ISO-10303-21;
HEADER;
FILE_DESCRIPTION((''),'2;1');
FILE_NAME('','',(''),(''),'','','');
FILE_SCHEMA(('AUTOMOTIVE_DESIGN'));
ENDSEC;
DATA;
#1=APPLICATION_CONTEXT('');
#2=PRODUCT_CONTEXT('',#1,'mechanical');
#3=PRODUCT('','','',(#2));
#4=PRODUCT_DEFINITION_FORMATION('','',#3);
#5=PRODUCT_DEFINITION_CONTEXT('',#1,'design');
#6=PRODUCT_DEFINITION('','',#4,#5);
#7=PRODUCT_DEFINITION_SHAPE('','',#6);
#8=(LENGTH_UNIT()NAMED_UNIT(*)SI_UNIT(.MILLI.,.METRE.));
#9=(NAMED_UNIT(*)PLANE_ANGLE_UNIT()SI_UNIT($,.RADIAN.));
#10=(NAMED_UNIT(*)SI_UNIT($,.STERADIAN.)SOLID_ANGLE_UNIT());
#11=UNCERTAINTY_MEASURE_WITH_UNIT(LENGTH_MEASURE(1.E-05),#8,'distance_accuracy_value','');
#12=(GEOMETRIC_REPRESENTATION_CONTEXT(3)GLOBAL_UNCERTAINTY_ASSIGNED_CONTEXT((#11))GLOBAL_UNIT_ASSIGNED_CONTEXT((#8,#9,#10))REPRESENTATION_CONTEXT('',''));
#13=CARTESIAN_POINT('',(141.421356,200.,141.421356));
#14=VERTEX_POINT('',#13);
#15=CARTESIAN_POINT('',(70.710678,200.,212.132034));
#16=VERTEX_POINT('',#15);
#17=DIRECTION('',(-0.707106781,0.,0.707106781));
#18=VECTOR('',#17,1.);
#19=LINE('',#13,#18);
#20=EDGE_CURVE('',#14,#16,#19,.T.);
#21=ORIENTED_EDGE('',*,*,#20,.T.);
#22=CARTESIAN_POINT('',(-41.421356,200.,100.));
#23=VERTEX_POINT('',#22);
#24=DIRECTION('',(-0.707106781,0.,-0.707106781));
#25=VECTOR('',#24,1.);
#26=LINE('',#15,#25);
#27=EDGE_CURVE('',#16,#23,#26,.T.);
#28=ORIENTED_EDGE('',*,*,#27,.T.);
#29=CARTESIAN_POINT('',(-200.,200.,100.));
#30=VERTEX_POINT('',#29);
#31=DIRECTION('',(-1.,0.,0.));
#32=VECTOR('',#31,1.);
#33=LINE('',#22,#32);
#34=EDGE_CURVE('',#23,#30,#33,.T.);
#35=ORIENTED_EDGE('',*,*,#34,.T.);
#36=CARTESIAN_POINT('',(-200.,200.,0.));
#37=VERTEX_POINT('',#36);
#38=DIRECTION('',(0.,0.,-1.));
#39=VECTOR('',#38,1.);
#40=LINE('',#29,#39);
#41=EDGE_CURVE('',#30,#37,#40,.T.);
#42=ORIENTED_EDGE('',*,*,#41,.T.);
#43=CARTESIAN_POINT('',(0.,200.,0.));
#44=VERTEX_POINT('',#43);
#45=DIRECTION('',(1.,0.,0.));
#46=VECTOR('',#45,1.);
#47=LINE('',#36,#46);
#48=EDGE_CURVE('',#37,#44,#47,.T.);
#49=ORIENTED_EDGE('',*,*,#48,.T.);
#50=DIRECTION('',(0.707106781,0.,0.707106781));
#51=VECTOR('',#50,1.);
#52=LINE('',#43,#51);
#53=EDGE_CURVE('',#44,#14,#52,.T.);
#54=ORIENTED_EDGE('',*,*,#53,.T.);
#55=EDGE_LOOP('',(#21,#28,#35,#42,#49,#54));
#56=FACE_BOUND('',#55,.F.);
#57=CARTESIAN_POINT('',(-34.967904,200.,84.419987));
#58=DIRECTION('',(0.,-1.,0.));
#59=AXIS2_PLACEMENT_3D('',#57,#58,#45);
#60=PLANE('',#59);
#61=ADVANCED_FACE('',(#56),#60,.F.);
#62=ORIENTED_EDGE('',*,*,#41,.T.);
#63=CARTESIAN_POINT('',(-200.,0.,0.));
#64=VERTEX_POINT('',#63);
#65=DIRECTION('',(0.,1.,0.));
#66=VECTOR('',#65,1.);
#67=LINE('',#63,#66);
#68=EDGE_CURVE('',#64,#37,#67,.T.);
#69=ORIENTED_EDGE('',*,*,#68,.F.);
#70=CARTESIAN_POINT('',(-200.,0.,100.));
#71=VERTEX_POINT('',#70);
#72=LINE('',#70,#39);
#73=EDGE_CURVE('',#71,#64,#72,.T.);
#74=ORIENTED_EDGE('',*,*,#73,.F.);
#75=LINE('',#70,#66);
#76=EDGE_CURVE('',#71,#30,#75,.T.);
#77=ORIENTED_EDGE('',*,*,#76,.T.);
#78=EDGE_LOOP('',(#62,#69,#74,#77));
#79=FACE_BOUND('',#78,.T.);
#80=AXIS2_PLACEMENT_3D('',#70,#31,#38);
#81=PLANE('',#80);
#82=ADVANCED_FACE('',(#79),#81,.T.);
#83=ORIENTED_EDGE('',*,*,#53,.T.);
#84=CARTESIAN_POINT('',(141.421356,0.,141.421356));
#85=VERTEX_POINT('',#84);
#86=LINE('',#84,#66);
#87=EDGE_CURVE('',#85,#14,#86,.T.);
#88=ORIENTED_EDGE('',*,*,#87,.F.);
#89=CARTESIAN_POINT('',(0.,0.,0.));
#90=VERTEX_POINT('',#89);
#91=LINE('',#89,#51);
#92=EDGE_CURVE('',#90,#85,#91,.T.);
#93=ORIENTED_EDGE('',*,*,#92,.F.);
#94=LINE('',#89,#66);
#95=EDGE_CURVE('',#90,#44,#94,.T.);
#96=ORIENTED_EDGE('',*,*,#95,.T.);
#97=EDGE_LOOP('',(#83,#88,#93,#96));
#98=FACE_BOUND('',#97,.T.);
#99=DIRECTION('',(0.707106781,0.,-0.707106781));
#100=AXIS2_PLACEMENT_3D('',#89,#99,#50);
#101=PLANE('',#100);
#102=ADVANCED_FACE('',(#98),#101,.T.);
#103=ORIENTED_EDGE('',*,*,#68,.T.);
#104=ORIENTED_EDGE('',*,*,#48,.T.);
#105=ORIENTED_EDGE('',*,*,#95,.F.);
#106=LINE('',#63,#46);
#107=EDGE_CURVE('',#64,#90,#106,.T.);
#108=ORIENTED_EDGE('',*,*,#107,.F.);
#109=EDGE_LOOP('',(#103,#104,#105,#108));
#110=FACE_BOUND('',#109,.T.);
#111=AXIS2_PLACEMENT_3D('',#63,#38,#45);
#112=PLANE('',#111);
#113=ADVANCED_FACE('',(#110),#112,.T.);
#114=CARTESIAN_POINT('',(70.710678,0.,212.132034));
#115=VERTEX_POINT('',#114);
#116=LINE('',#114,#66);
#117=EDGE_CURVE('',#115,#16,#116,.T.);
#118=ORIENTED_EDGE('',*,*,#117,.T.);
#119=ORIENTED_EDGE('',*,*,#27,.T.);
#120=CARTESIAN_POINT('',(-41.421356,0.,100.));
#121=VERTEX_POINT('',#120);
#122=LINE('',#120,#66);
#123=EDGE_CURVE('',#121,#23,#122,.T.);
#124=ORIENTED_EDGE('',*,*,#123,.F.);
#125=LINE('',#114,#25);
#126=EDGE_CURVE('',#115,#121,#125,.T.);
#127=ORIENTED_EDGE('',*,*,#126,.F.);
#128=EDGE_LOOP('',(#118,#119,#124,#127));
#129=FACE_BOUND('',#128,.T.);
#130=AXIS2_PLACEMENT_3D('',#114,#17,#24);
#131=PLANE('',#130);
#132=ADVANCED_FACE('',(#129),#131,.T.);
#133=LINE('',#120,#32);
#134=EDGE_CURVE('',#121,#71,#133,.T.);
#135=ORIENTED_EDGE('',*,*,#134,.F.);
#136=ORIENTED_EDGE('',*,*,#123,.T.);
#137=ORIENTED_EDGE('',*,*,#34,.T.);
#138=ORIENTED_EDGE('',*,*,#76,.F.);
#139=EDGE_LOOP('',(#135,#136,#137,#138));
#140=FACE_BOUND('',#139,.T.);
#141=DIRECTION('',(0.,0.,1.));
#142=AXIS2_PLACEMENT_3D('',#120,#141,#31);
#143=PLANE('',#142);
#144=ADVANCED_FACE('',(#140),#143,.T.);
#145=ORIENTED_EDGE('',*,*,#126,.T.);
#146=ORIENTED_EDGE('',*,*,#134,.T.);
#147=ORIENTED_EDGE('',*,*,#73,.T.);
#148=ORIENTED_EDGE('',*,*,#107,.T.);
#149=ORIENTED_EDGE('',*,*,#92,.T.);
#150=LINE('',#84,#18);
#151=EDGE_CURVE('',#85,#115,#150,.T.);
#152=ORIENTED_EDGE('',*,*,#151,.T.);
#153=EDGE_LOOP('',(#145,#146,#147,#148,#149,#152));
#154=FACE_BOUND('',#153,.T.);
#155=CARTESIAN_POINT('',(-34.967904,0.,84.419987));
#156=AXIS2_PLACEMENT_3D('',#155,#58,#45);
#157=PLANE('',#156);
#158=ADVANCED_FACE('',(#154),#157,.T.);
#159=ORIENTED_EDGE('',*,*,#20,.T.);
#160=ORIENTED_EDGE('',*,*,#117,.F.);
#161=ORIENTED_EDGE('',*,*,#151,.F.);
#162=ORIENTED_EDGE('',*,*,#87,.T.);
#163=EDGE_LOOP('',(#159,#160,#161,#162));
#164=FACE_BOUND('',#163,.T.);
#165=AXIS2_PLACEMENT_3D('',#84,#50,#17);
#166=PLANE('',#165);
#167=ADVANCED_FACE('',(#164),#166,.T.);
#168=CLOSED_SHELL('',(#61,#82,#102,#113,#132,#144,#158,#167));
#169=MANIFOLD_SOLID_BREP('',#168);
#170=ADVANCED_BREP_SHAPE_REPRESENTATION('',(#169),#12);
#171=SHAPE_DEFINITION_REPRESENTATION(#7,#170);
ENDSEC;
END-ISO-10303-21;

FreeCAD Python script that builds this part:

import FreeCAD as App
import Part
import Sketcher
from FreeCAD import Vector
Q = App.Units.Quantity

doc = App.newDocument("Part")
body = doc.addObject("PartDesign::Body", "Body")

# Sketch on XZ plane
sketch1 = body.newObject("Sketcher::SketchObject", "Sketch")
sketch1.AttachmentSupport = (doc.getObject("XZ_Plane"), [""])
sketch1.MapMode = "FlatFace"
sketch1.addGeometry(Part.LineSegment(Vector(-200, 100, 0), Vector(-200, 0, 0)), False)
sketch1.addGeometry(Part.LineSegment(Vector(-200, 0, 0), Vector(0, 0, 0)), False)
sketch1.addGeometry(Part.LineSegment(Vector(0, 0, 0), Vector(141, 141, 0)), False)
sketch1.addGeometry(Part.LineSegment(Vector(141, 141, 0), Vector(71, 212, 0)), False)
sketch1.addGeometry(Part.LineSegment(Vector(71, 212, 0), Vector(-41, 100, 0)), False)
sketch1.addGeometry(Part.LineSegment(Vector(-41, 100, 0), Vector(-200, 100, 0)), False)
sketch1.addConstraint(Sketcher.Constraint("Coincident", 0, 2, 1, 1))
sketch1.addConstraint(Sketcher.Constraint("Coincident", 1, 2, 2, 1))
sketch1.addConstraint(Sketcher.Constraint("Coincident", 2, 2, 3, 1))
sketch1.addConstraint(Sketcher.Constraint("Coincident", 3, 2, 4, 1))
sketch1.addConstraint(Sketcher.Constraint("Coincident", 4, 2, 5, 1))
sketch1.addConstraint(Sketcher.Constraint("Coincident", 5, 2, 0, 1))
sketch1.addConstraint(Sketcher.Constraint("Vertical", 0))
sketch1.addConstraint(Sketcher.Constraint("Horizontal", 1))
sketch1.addConstraint(Sketcher.Constraint("Horizontal", 5))
sketch1.addConstraint(Sketcher.Constraint("Coincident", 1, 2, -1, 1))
sketch1.addConstraint(Sketcher.Constraint("Perpendicular", 2, 3))
sketch1.addConstraint(Sketcher.Constraint("Perpendicular", 3, 4))
sketch1.addConstraint(Sketcher.Constraint("DistanceX", 1, 1, 1, 2, 200.0))
sketch1.addConstraint(Sketcher.Constraint("DistanceY", 0, 2, 0, 1, 100.0))
sketch1.addConstraint(Sketcher.Constraint("Angle", 2, Q("45 deg")))
sketch1.addConstraint(Sketcher.Constraint("Distance", 2, 200.0))
sketch1.addConstraint(Sketcher.Constraint("Distance", 3, 100.0))
pad1 = body.newObject("PartDesign::Pad", "Pad")
pad1.Profile = sketch1
pad1.Length = 200
pad1.Reversed = True

doc.recompute()
